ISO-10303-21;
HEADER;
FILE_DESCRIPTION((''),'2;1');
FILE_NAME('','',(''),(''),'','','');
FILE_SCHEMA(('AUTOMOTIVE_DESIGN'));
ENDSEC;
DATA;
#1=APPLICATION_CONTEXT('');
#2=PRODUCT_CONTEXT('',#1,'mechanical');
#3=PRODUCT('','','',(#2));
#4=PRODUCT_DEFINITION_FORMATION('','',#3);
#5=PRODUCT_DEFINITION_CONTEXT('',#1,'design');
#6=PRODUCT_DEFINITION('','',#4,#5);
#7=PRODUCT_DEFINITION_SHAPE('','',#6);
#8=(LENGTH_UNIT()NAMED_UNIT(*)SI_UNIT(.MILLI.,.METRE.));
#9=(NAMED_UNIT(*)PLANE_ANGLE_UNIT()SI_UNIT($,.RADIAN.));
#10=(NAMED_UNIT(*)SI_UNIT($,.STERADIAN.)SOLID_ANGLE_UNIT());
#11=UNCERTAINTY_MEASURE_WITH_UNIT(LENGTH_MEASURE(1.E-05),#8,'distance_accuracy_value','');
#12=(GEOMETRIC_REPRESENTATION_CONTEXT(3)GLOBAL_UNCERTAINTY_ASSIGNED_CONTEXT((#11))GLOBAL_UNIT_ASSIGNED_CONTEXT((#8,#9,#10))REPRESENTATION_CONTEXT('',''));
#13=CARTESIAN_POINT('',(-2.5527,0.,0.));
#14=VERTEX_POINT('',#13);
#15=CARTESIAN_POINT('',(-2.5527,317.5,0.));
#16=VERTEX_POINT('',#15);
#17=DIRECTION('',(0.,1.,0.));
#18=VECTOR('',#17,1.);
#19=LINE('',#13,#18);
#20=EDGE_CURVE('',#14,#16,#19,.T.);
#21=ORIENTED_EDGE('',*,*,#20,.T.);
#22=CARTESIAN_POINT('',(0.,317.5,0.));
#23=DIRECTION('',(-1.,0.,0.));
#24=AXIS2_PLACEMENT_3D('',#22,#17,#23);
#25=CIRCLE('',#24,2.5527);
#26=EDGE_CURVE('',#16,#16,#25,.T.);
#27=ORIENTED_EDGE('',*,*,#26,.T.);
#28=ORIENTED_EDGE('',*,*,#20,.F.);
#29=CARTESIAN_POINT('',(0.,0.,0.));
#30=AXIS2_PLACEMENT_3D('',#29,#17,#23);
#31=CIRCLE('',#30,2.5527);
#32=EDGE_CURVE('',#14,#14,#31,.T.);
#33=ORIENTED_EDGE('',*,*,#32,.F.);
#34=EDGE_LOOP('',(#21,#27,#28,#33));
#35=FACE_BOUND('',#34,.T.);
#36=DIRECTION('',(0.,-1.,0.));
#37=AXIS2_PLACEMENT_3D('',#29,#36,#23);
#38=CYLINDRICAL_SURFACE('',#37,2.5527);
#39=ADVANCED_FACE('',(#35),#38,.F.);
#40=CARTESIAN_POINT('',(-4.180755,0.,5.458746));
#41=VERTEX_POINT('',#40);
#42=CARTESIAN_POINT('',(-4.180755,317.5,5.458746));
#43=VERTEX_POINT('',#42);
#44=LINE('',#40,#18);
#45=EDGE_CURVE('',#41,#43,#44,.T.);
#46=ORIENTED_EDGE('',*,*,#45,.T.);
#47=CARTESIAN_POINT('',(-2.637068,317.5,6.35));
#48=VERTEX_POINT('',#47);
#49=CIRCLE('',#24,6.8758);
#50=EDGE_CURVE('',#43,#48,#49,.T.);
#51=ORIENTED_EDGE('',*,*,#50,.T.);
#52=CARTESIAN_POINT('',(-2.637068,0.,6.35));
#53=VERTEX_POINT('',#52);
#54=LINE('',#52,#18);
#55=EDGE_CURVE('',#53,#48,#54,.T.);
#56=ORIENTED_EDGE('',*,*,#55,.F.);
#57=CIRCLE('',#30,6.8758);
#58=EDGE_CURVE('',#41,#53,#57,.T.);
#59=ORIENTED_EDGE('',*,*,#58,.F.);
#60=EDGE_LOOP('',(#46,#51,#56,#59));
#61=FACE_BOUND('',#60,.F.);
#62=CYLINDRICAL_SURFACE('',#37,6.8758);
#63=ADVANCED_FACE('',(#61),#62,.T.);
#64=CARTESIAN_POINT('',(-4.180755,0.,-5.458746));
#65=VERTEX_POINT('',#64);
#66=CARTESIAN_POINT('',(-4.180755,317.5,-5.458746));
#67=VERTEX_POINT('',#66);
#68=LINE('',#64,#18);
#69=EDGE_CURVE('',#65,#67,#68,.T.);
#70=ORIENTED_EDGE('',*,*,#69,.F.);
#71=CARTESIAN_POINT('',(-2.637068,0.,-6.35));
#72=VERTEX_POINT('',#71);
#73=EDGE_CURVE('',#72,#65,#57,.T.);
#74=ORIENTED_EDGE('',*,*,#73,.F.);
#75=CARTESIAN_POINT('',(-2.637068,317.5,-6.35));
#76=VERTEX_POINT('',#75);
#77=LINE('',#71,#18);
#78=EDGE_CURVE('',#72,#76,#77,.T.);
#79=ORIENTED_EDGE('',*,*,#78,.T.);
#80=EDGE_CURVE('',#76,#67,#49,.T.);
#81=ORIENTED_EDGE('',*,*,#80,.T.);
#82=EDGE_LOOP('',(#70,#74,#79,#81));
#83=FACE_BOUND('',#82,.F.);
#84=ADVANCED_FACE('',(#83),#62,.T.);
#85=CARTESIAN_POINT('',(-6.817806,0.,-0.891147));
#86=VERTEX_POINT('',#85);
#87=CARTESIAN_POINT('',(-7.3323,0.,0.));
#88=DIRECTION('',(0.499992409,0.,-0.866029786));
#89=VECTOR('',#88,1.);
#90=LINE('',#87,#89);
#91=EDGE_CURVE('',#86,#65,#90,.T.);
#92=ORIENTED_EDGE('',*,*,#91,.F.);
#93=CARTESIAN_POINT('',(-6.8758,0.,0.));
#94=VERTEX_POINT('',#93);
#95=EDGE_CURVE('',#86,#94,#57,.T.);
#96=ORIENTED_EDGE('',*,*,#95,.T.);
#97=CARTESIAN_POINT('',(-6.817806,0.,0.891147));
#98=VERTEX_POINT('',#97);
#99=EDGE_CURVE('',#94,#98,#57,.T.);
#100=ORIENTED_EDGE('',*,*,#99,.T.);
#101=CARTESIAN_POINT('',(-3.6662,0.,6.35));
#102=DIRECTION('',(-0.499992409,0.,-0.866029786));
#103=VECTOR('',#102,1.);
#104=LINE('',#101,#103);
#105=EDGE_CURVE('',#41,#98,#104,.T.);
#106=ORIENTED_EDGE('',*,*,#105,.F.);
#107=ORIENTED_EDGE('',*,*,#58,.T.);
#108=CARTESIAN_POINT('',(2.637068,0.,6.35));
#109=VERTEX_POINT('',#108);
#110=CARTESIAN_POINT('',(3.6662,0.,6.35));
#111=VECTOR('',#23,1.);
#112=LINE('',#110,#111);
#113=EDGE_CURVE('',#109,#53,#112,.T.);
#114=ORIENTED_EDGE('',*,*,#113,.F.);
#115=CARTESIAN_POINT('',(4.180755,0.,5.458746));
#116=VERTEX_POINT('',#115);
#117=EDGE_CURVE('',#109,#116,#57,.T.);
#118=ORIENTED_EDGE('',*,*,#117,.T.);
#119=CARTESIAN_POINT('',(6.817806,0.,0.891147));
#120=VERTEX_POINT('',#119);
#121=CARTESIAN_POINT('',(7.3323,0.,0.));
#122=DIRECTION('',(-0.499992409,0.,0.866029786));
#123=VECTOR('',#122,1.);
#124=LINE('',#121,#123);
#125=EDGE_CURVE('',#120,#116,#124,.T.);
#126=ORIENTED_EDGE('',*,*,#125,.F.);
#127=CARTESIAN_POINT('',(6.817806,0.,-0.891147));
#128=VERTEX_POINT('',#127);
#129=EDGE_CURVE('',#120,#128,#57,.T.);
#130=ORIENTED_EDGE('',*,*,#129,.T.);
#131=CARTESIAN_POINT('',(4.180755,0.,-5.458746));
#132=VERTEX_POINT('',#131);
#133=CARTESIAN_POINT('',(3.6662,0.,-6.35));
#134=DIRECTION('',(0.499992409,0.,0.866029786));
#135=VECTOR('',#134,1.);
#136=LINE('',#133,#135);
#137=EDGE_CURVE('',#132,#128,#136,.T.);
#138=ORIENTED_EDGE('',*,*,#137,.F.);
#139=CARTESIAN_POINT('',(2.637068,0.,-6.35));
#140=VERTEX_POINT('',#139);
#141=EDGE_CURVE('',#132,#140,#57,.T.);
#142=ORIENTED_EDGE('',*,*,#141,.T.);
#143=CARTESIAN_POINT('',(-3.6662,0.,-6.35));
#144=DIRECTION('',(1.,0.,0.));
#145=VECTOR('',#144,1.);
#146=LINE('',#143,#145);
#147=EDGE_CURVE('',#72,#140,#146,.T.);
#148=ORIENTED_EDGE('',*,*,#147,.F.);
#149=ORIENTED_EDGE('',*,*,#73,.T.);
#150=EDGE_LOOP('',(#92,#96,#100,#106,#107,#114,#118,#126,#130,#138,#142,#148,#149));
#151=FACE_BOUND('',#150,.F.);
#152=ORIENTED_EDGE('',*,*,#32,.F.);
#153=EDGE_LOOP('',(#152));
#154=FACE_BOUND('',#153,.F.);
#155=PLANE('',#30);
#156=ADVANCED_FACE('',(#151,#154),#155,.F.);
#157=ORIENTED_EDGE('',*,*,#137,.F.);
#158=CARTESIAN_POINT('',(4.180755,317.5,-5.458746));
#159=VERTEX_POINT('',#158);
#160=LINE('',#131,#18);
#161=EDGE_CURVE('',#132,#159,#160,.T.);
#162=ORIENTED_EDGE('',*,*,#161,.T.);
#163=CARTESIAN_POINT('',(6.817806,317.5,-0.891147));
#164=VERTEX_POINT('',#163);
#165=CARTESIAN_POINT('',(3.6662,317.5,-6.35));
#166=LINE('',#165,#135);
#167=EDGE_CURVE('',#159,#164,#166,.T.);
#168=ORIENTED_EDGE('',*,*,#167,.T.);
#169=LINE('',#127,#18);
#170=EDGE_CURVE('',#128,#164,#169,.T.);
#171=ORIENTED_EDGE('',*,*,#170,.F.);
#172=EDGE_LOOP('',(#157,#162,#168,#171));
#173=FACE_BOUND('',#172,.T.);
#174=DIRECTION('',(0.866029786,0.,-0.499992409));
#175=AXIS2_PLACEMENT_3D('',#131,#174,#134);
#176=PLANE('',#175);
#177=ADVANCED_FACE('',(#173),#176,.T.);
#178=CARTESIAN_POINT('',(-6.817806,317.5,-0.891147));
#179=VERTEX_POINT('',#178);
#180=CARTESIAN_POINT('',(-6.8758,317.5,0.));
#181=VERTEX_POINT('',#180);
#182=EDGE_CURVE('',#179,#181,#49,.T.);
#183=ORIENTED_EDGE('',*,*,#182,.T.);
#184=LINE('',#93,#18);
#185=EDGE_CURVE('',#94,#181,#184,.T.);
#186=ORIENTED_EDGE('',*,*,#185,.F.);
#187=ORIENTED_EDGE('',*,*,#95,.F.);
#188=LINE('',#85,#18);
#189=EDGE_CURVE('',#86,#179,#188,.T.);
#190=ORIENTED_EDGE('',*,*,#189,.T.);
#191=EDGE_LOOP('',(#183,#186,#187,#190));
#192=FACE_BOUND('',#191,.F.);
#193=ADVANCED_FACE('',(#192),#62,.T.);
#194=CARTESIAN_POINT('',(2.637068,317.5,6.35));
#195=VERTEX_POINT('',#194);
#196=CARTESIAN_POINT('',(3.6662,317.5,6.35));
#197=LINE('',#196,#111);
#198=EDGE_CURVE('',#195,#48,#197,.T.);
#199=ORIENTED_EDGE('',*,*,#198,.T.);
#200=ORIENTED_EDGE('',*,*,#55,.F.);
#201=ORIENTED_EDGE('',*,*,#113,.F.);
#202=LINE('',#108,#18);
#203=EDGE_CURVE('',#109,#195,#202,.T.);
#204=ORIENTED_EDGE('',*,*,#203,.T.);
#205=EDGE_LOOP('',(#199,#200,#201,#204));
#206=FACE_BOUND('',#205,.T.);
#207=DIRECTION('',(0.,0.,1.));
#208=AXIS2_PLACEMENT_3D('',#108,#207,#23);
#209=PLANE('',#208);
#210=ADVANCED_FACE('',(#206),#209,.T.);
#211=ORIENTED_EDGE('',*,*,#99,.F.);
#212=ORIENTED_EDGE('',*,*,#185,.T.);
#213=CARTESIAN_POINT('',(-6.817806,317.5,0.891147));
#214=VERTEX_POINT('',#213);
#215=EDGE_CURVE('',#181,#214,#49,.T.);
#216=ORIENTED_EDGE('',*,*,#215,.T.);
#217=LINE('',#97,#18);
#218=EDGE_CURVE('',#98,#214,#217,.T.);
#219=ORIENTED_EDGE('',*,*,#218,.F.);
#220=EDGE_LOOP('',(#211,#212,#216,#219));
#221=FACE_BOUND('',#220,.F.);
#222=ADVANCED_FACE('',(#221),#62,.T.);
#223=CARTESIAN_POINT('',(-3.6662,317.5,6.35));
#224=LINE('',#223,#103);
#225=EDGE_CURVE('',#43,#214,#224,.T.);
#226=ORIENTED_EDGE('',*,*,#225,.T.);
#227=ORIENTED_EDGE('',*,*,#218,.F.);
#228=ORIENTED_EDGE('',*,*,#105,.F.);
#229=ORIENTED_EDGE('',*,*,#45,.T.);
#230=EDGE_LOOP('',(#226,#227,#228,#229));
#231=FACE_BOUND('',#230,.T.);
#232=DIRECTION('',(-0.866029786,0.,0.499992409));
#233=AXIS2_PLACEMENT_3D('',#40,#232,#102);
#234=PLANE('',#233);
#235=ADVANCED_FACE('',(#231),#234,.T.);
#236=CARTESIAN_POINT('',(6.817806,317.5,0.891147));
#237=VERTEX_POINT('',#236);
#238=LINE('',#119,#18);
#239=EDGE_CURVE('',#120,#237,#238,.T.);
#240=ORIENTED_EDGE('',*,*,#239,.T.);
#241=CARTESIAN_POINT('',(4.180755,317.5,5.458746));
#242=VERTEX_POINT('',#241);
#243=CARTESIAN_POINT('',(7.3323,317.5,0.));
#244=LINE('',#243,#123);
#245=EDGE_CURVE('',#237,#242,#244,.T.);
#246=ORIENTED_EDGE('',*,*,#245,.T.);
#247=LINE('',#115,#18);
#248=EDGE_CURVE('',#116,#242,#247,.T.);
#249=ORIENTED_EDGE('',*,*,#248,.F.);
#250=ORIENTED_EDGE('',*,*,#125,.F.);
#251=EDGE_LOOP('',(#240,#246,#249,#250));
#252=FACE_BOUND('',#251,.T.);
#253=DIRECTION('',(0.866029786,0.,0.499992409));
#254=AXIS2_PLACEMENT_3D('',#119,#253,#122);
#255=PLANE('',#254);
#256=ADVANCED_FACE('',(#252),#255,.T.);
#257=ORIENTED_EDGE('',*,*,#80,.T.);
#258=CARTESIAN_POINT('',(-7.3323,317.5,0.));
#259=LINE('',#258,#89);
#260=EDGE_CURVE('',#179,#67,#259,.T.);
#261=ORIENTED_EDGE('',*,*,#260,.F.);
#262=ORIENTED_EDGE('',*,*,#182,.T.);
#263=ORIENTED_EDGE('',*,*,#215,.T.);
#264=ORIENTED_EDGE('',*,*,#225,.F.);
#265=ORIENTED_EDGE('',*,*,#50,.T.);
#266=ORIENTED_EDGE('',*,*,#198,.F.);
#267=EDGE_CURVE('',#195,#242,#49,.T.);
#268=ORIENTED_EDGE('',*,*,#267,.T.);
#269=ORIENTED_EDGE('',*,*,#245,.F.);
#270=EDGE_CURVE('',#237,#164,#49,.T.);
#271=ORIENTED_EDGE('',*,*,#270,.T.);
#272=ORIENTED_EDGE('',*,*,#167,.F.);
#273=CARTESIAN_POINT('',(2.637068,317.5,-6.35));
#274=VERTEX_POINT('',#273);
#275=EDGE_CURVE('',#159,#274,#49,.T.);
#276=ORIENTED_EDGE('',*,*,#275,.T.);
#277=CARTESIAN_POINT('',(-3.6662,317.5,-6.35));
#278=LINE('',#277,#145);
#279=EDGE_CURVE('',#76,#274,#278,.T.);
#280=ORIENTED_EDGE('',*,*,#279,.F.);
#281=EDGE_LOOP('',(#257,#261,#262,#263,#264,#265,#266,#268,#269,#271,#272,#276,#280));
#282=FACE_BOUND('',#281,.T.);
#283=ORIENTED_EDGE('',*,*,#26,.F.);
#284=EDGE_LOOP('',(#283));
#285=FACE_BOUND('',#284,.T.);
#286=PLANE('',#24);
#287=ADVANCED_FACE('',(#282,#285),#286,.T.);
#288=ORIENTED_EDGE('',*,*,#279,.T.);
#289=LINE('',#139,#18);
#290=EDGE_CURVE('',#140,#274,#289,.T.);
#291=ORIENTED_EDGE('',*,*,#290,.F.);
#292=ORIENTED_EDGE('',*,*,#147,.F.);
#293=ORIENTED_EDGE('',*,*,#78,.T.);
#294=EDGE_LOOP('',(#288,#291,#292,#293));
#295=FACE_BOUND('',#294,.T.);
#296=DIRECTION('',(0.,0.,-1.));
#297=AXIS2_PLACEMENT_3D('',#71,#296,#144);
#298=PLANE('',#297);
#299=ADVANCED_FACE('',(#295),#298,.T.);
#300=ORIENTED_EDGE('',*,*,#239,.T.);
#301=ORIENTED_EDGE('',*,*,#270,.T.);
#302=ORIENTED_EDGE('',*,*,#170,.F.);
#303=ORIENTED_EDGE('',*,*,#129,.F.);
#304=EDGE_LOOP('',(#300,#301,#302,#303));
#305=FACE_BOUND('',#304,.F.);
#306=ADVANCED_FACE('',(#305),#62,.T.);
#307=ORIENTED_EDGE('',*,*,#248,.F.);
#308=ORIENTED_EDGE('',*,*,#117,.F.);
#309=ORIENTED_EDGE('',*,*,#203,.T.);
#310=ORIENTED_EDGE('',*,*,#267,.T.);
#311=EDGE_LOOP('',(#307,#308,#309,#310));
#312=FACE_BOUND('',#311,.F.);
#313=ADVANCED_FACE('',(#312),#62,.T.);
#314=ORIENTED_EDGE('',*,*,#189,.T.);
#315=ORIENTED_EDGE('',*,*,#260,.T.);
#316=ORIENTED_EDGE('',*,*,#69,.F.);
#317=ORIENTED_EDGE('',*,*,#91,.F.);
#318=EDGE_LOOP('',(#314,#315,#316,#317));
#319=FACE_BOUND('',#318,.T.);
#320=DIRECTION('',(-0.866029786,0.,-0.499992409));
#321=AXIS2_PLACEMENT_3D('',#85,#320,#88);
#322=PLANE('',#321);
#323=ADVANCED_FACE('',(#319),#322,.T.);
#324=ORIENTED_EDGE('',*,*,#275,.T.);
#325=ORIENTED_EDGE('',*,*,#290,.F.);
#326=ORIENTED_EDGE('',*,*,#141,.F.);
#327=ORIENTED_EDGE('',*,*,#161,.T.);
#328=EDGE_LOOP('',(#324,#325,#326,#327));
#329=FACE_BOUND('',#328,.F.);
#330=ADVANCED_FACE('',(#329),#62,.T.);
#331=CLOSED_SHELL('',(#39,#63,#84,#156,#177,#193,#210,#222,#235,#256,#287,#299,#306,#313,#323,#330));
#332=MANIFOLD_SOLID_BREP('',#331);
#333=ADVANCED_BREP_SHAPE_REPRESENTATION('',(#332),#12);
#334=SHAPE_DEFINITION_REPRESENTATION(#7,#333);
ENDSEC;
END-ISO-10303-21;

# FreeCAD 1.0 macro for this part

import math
import FreeCAD as App
import Part
import Sketcher

V = App.Vector
Q = App.Units.Quantity

doc = App.newDocument("Part")
body = doc.addObject("PartDesign::Body", "Body")

# Sketch on XZ plane
sketch1 = body.newObject("Sketcher::SketchObject", "Sketch")
sketch1.AttachmentSupport = (doc.getObject("XZ_Plane"), [""])
sketch1.MapMode = "FlatFace"
sketch1.addGeometry([
    Part.LineSegment(V(-4.2, -5.5, 0), V(-6.8, -0.9, 0)),  # 0
    Part.ArcOfCircle(Part.Circle(V(0, 0, 0), V(0, 0, 1), 6.9), math.radians(172.55), math.radians(187.45)),  # 1
    Part.LineSegment(V(-6.8, 0.9, 0), V(-4.2, 5.5, 0)),  # 2
    Part.ArcOfCircle(Part.Circle(V(0, 0, 0), V(0, 0, 1), 6.9), math.radians(112.55), math.radians(127.45)),  # 3
    Part.LineSegment(V(-2.6, 6.3, 0), V(2.6, 6.3, 0)),  # 4
    Part.ArcOfCircle(Part.Circle(V(0, 0, 0), V(0, 0, 1), 6.9), math.radians(52.55), math.radians(67.45)),  # 5
    Part.LineSegment(V(4.2, 5.5, 0), V(6.8, 0.9, 0)),  # 6
    Part.ArcOfCircle(Part.Circle(V(0, 0, 0), V(0, 0, 1), 6.9), math.radians(-7.45), math.radians(7.45)),  # 7
    Part.LineSegment(V(6.8, -0.9, 0), V(4.2, -5.5, 0)),  # 8
    Part.ArcOfCircle(Part.Circle(V(0, 0, 0), V(0, 0, 1), 6.9), math.radians(-67.45), math.radians(-52.55)),  # 9
    Part.LineSegment(V(2.6, -6.3, 0), V(-2.6, -6.3, 0)),  # 10
    Part.ArcOfCircle(Part.Circle(V(0, 0, 0), V(0, 0, 1), 6.9), math.radians(-127.45), math.radians(-112.55)),  # 11
    Part.Circle(V(0, 0, 0), V(0, 0, 1), 2.6),  # 12
], False)
sketch1.addConstraint([
    Sketcher.Constraint("Coincident", 0, 2, 1, 2),
    Sketcher.Constraint("Coincident", 1, 1, 2, 1),
    Sketcher.Constraint("Coincident", 2, 2, 3, 2),
    Sketcher.Constraint("Coincident", 3, 1, 4, 1),
    Sketcher.Constraint("Coincident", 4, 2, 5, 2),
    Sketcher.Constraint("Coincident", 5, 1, 6, 1),
    Sketcher.Constraint("Coincident", 6, 2, 7, 2),
    Sketcher.Constraint("Coincident", 7, 1, 8, 1),
    Sketcher.Constraint("Coincident", 8, 2, 9, 2),
    Sketcher.Constraint("Coincident", 9, 1, 10, 1),
    Sketcher.Constraint("Coincident", 10, 2, 11, 2),
    Sketcher.Constraint("Coincident", 11, 1, 0, 1),
    Sketcher.Constraint("Horizontal", 4),
    Sketcher.Constraint("Horizontal", 10),
    Sketcher.Constraint("Coincident", 1, 3, -1, 1),
    Sketcher.Constraint("Coincident", 3, 3, -1, 1),
    Sketcher.Constraint("Coincident", 5, 3, -1, 1),
    Sketcher.Constraint("Coincident", 7, 3, -1, 1),
    Sketcher.Constraint("Coincident", 9, 3, -1, 1),
    Sketcher.Constraint("Coincident", 11, 3, -1, 1),
    Sketcher.Constraint("Coincident", 12, 3, -1, 1),
    Sketcher.Constraint("Equal", 1, 3),
    Sketcher.Constraint("Equal", 3, 5),
    Sketcher.Constraint("Equal", 5, 7),
    Sketcher.Constraint("Equal", 7, 9),
    Sketcher.Constraint("Equal", 9, 11),
    Sketcher.Constraint("Parallel", 0, 6),
    Sketcher.Constraint("Parallel", 2, 8),
    Sketcher.Constraint("Horizontal", 2, 2, 5, 1),
    Sketcher.Constraint("Horizontal", 1, 1, 6, 2),
    Sketcher.Constraint("Horizontal", 0, 2, 7, 1),
    Sketcher.Constraint("Vertical", 0, 2, 1, 1),
    Sketcher.Constraint("Vertical", 4, 2, 9, 1),
    Sketcher.Constraint("Diameter", 12, Q("0.201 in")),
    Sketcher.Constraint("Radius", 1, Q("0.2707 in")),
    Sketcher.Constraint("DistanceY", -1, 1, 3, 1, Q("0.25 in")),
    Sketcher.Constraint("DistanceY", 0, 2, 2, 2, Q("0.25 in")),
    Sketcher.Constraint("Angle", 0, Q("119.9995 deg")),
])
pad1 = body.newObject("PartDesign::Pad", "Pad")
pad1.Profile = sketch1
pad1.Length = Q("12.5 in")
pad1.Reversed = True

doc.recompute()
